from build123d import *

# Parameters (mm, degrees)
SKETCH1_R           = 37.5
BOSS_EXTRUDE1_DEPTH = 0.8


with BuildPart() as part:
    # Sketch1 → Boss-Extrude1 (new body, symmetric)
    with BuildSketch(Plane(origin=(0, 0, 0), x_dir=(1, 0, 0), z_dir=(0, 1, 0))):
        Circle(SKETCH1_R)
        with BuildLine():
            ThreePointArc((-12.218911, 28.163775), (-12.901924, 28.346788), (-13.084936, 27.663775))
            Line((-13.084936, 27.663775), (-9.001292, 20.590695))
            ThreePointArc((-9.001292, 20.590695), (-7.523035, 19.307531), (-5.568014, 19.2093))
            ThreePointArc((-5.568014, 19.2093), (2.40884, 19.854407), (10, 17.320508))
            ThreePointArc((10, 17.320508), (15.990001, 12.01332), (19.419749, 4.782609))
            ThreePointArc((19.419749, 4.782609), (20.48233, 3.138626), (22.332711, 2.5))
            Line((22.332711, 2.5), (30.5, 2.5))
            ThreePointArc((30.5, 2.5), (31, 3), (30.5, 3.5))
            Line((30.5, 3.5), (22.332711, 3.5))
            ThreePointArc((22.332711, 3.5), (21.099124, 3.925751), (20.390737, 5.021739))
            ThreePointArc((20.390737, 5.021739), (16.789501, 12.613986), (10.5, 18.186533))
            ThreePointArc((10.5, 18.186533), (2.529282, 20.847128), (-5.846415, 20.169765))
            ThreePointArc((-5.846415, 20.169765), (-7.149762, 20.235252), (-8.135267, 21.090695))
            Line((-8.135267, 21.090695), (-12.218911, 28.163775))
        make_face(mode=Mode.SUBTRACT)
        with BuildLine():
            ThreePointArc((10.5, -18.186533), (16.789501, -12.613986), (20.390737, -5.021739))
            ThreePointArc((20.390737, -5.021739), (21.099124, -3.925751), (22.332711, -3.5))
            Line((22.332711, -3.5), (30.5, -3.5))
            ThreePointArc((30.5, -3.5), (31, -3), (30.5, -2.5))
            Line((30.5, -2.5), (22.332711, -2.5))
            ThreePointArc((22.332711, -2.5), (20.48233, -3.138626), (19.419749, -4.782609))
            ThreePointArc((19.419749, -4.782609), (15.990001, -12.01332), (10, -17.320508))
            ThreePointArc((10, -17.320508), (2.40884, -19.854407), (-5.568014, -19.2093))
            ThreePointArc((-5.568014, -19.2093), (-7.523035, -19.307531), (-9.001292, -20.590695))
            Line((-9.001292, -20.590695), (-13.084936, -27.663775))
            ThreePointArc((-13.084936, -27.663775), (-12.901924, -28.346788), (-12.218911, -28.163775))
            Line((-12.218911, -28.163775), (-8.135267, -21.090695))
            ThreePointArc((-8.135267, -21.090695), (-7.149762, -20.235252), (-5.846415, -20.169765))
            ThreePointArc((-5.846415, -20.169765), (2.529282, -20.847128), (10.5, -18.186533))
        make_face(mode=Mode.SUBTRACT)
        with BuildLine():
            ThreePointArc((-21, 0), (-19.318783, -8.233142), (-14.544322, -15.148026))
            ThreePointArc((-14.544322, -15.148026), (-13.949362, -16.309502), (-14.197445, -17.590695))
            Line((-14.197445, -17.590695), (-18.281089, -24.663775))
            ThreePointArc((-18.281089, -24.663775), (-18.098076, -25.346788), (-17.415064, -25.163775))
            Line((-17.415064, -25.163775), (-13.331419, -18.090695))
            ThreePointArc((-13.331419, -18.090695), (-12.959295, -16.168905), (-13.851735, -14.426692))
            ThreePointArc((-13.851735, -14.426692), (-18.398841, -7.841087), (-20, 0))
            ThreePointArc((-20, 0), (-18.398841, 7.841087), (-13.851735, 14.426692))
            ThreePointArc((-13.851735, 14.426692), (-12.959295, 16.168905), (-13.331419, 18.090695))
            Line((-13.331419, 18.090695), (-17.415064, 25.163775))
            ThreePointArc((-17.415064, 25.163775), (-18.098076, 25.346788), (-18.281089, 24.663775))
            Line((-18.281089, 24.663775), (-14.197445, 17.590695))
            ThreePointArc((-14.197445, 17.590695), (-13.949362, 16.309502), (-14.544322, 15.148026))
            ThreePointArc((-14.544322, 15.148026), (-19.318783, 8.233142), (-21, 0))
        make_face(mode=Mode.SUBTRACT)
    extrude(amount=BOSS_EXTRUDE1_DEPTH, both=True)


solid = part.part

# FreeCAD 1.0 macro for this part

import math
import FreeCAD as App
import Part
import Sketcher

V = App.Vector
Q = App.Units.Quantity

doc = App.newDocument("Part")
body = doc.addObject("PartDesign::Body", "Body")

sketch1 = body.newObject("Sketcher::SketchObject", "Sketch")
sketch1.AttachmentSupport = (doc.getObject("XZ_Plane"), [""])
sketch1.MapMode = "FlatFace"
sketch1.addGeometry([
    Part.Circle(V(0, 0, 0), V(0, 0, 1), 37.5),
    Part.ArcOfCircle(Part.Circle(V(0, 0, 0), V(0, 0, 1), 21), math.radians(14), math.radians(60)),
    Part.ArcOfCircle(Part.Circle(V(0, 0, 0), V(0, 0, 1), 21), math.radians(60), math.radians(106)),
    Part.ArcOfCircle(Part.Circle(V(-6.4, 22.09, 0), V(0, 0, 1), 2), math.radians(-150), math.radians(-74)),
    Part.LineSegment(V(-8.14, 21.09, 0), V(-12.22, 28.16, 0)),
    Part.ArcOfCircle(Part.Circle(V(-12.65, 27.91, 0), V(0, 0, 1), 0.5), math.radians(30), math.radians(210)),
    Part.LineSegment(V(-13.08, 27.66, 0), V(-9, 20.59, 0)),
    Part.ArcOfCircle(Part.Circle(V(-6.4, 22.09, 0), V(0, 0, 1), 3), math.radians(-150), math.radians(-74)),
    Part.ArcOfCircle(Part.Circle(V(0, 0, 0), V(0, 0, 1), 20), math.radians(60), math.radians(106)),
    Part.ArcOfCircle(Part.Circle(V(0, 0, 0), V(0, 0, 1), 20), math.radians(14), math.radians(60)),
    Part.ArcOfCircle(Part.Circle(V(22.33, 5.5, 0), V(0, 0, 1), 3), math.radians(-166), math.radians(-90)),
    Part.LineSegment(V(22.33, 2.5, 0), V(30.5, 2.5, 0)),
    Part.ArcOfCircle(Part.Circle(V(30.5, 3, 0), V(0, 0, 1), 0.5), math.radians(-90), math.radians(90)),
    Part.LineSegment(V(30.5, 3.5, 0), V(22.33, 3.5, 0)),
    Part.ArcOfCircle(Part.Circle(V(22.33, 5.5, 0), V(0, 0, 1), 2), math.radians(-166), math.radians(-90)),
    Part.ArcOfCircle(Part.Circle(V(0, 0, 0), V(0, 0, 1), 21), math.radians(134), math.radians(180)),
    Part.ArcOfCircle(Part.Circle(V(0, 0, 0), V(0, 0, 1), 21), math.radians(180), math.radians(226)),
    Part.ArcOfCircle(Part.Circle(V(-15.93, -16.59, 0), V(0, 0, 1), 2), math.radians(-30), math.radians(46)),
    Part.LineSegment(V(-14.2, -17.59, 0), V(-18.28, -24.66, 0)),
    Part.ArcOfCircle(Part.Circle(V(-17.85, -24.91, 0), V(0, 0, 1), 0.5), math.radians(150), math.radians(330)),
    Part.LineSegment(V(-17.42, -25.16, 0), V(-13.33, -18.09, 0)),
    Part.ArcOfCircle(Part.Circle(V(-15.93, -16.59, 0), V(0, 0, 1), 3), math.radians(-30), math.radians(46)),
    Part.ArcOfCircle(Part.Circle(V(0, 0, 0), V(0, 0, 1), 20), math.radians(-180), math.radians(-134)),
    Part.ArcOfCircle(Part.Circle(V(0, 0, 0), V(0, 0, 1), 20), math.radians(134), math.radians(180)),
    Part.ArcOfCircle(Part.Circle(V(-15.93, 16.59, 0), V(0, 0, 1), 3), math.radians(-46), math.radians(30)),
    Part.LineSegment(V(-13.33, 18.09, 0), V(-17.42, 25.16, 0)),
    Part.ArcOfCircle(Part.Circle(V(-17.85, 24.91, 0), V(0, 0, 1), 0.5), math.radians(30), math.radians(210)),
    Part.LineSegment(V(-18.28, 24.66, 0), V(-14.2, 17.59, 0)),
    Part.ArcOfCircle(Part.Circle(V(-15.93, 16.59, 0), V(0, 0, 1), 2), math.radians(-46), math.radians(30)),
    Part.ArcOfCircle(Part.Circle(V(-12.65, -27.91, 0), V(0, 0, 1), 0.5), math.radians(150), math.radians(330)),
    Part.LineSegment(V(-12.22, -28.16, 0), V(-8.14, -21.09, 0)),
    Part.ArcOfCircle(Part.Circle(V(-6.4, -22.09, 0), V(0, 0, 1), 2), math.radians(74), math.radians(150)),
    Part.ArcOfCircle(Part.Circle(V(0, 0, 0), V(0, 0, 1), 21), math.radians(-106), math.radians(-60)),
    Part.ArcOfCircle(Part.Circle(V(0, 0, 0), V(0, 0, 1), 21), math.radians(-60), math.radians(-14)),
    Part.ArcOfCircle(Part.Circle(V(22.33, -5.5, 0), V(0, 0, 1), 2), math.radians(90), math.radians(166)),
    Part.LineSegment(V(22.33, -3.5, 0), V(30.5, -3.5, 0)),
    Part.ArcOfCircle(Part.Circle(V(30.5, -3, 0), V(0, 0, 1), 0.5), math.radians(-90), math.radians(90)),
    Part.LineSegment(V(30.5, -2.5, 0), V(22.33, -2.5, 0)),
    Part.ArcOfCircle(Part.Circle(V(22.33, -5.5, 0), V(0, 0, 1), 3), math.radians(90), math.radians(166)),
    Part.ArcOfCircle(Part.Circle(V(0, 0, 0), V(0, 0, 1), 20), math.radians(-60), math.radians(-14)),
    Part.ArcOfCircle(Part.Circle(V(0, 0, 0), V(0, 0, 1), 20), math.radians(-106), math.radians(-60)),
    Part.ArcOfCircle(Part.Circle(V(-6.4, -22.09, 0), V(0, 0, 1), 3), math.radians(74), math.radians(150)),
    Part.LineSegment(V(-9, -20.59, 0), V(-13.08, -27.66, 0)),
], False)
sketch1.addConstraint([
    Sketcher.Constraint("Tangent", 1, 2, 2, 1),
    Sketcher.Constraint("Tangent", 2, 2, 3, 2),
    Sketcher.Constraint("Tangent", 3, 1, 4, 1),
    Sketcher.Constraint("Tangent", 4, 2, 5, 1),
    Sketcher.Constraint("Tangent", 5, 2, 6, 1),
    Sketcher.Constraint("Tangent", 6, 2, 7, 1),
    Sketcher.Constraint("Tangent", 7, 2, 8, 2),
    Sketcher.Constraint("Tangent", 8, 1, 9, 2),
    Sketcher.Constraint("Tangent", 9, 1, 10, 1),
    Sketcher.Constraint("Tangent", 10, 2, 11, 1),
    Sketcher.Constraint("Tangent", 11, 2, 12, 1),
    Sketcher.Constraint("Tangent", 12, 2, 13, 1),
    Sketcher.Constraint("Tangent", 13, 2, 14, 2),
    Sketcher.Constraint("Tangent", 14, 1, 1, 1),
    Sketcher.Constraint("Tangent", 15, 2, 16, 1),
    Sketcher.Constraint("Tangent", 16, 2, 17, 2),
    Sketcher.Constraint("Tangent", 17, 1, 18, 1),
    Sketcher.Constraint("Tangent", 18, 2, 19, 1),
    Sketcher.Constraint("Tangent", 19, 2, 20, 1),
    Sketcher.Constraint("Tangent", 20, 2, 21, 1),
    Sketcher.Constraint("Tangent", 21, 2, 22, 2),
    Sketcher.Constraint("Tangent", 22, 1, 23, 2),
    Sketcher.Constraint("Tangent", 23, 1, 24, 1),
    Sketcher.Constraint("Tangent", 24, 2, 25, 1),
    Sketcher.Constraint("Tangent", 25, 2, 26, 1),
    Sketcher.Constraint("Tangent", 26, 2, 27, 1),
    Sketcher.Constraint("Tangent", 27, 2, 28, 2),
    Sketcher.Constraint("Tangent", 28, 1, 15, 1),
    Sketcher.Constraint("Tangent", 29, 2, 30, 1),
    Sketcher.Constraint("Tangent", 30, 2, 31, 2),
    Sketcher.Constraint("Tangent", 31, 1, 32, 1),
    Sketcher.Constraint("Tangent", 32, 2, 33, 1),
    Sketcher.Constraint("Tangent", 33, 2, 34, 2),
    Sketcher.Constraint("Tangent", 34, 1, 35, 1),
    Sketcher.Constraint("Tangent", 35, 2, 36, 1),
    Sketcher.Constraint("Tangent", 36, 2, 37, 1),
    Sketcher.Constraint("Tangent", 37, 2, 38, 1),
    Sketcher.Constraint("Tangent", 38, 2, 39, 2),
    Sketcher.Constraint("Tangent", 39, 1, 40, 2),
    Sketcher.Constraint("Tangent", 40, 1, 41, 1),
    Sketcher.Constraint("Tangent", 41, 2, 42, 1),
    Sketcher.Constraint("Tangent", 42, 2, 29, 1),
    Sketcher.Constraint("Horizontal", 11),
    Sketcher.Constraint("Horizontal", 13),
    Sketcher.Constraint("Horizontal", 35),
    Sketcher.Constraint("Horizontal", 37),
    Sketcher.Constraint("Coincident", 0, 3, -1, 1),
    Sketcher.Constraint("Coincident", 1, 3, -1, 1),
    Sketcher.Constraint("Coincident", 8, 3, -1, 1),
    Sketcher.Constraint("Coincident", 15, 3, -1, 1),
    Sketcher.Constraint("Coincident", 22, 3, -1, 1),
    Sketcher.Constraint("Coincident", 32, 3, -1, 1),
    Sketcher.Constraint("Coincident", 39, 3, -1, 1),
    Sketcher.Constraint("Coincident", 7, 3, 3, 3),
    Sketcher.Constraint("Coincident", 14, 3, 10, 3),
    Sketcher.Constraint("Coincident", 21, 3, 17, 3),
    Sketcher.Constraint("Coincident", 28, 3, 24, 3),
    Sketcher.Constraint("Coincident", 38, 3, 34, 3),
    Sketcher.Constraint("Coincident", 41, 3, 31, 3),
    Sketcher.Constraint("Equal", 8, 9),
    Sketcher.Constraint("Equal", 7, 10),
    Sketcher.Constraint("Equal", 5, 12),
    Sketcher.Constraint("Equal", 3, 14),
    Sketcher.Constraint("Equal", 15, 16),
    Sketcher.Constraint("Equal", 14, 17),
    Sketcher.Constraint("Equal", 12, 19),
    Sketcher.Constraint("Equal", 10, 21),
    Sketcher.Constraint("Equal", 9, 22),
    Sketcher.Constraint("Equal", 22, 23),
    Sketcher.Constraint("Equal", 21, 24),
    Sketcher.Constraint("Equal", 19, 26),
    Sketcher.Constraint("Equal", 26, 29),
    Sketcher.Constraint("Equal", 28, 31),
    Sketcher.Constraint("Equal", 2, 32),
    Sketcher.Constraint("Equal", 1, 33),
    Sketcher.Constraint("Equal", 31, 34),
    Sketcher.Constraint("Equal", 29, 36),
    Sketcher.Constraint("Equal", 39, 40),
    Sketcher.Constraint("Symmetric", 19, 3, 26, 3, -1),
    Sketcher.Constraint("Symmetric", 5, 3, 29, 3, -1),
    Sketcher.Constraint("Symmetric", 12, 3, 36, 3, -1),
    Sketcher.Constraint("PointOnObject", 15, 2, -1),
    Sketcher.Constraint("PointOnObject", 22, 1, -1),
    Sketcher.Constraint("Parallel", 6, 25),
    Sketcher.Constraint("Parallel", 20, 30),
    Sketcher.Constraint("Vertical", 21, 3, 24, 3),
    Sketcher.Constraint("Vertical", 1, 2, 32, 2),
    Sketcher.Constraint("Vertical", 8, 1, 39, 1),
    Sketcher.Constraint("Equal", 6, 18),
    Sketcher.Constraint("Diameter", 0, Q("75 mm")),
    Sketcher.Constraint("Radius", 3, Q("2 mm")),
    Sketcher.Constraint("Radius", 7, Q("3.000002 mm")),
    Sketcher.Constraint("Radius", 8, Q("20.000001 mm")),
    Sketcher.Constraint("Angle", 4, Q("119.999996 deg")),
    Sketcher.Constraint("DistanceY", -1, 1, 12, 3, Q("3 mm")),
    Sketcher.Constraint("DistanceX", -1, 1, 8, 1, Q("10 mm")),
    Sketcher.Constraint("DistanceX", -1, 1, 12, 3, Q("30.5 mm")),
    Sketcher.Constraint("DistanceX", -1, 1, 1, 2, Q("10.5 mm")),
    Sketcher.Constraint("DistanceY", -1, 1, 7, 2, Q("19.2093 mm")),
    Sketcher.Constraint("Distance", 4, Q("8.167289 mm")),
    Sketcher.Constraint("DistanceX", 16, 2, -1, 1, Q("14.544322 mm")),
])
pad1 = body.newObject("PartDesign::Pad", "Pad")
pad1.Profile = sketch1
pad1.Length = 1.6
pad1.Midplane = True

doc.recompute()
